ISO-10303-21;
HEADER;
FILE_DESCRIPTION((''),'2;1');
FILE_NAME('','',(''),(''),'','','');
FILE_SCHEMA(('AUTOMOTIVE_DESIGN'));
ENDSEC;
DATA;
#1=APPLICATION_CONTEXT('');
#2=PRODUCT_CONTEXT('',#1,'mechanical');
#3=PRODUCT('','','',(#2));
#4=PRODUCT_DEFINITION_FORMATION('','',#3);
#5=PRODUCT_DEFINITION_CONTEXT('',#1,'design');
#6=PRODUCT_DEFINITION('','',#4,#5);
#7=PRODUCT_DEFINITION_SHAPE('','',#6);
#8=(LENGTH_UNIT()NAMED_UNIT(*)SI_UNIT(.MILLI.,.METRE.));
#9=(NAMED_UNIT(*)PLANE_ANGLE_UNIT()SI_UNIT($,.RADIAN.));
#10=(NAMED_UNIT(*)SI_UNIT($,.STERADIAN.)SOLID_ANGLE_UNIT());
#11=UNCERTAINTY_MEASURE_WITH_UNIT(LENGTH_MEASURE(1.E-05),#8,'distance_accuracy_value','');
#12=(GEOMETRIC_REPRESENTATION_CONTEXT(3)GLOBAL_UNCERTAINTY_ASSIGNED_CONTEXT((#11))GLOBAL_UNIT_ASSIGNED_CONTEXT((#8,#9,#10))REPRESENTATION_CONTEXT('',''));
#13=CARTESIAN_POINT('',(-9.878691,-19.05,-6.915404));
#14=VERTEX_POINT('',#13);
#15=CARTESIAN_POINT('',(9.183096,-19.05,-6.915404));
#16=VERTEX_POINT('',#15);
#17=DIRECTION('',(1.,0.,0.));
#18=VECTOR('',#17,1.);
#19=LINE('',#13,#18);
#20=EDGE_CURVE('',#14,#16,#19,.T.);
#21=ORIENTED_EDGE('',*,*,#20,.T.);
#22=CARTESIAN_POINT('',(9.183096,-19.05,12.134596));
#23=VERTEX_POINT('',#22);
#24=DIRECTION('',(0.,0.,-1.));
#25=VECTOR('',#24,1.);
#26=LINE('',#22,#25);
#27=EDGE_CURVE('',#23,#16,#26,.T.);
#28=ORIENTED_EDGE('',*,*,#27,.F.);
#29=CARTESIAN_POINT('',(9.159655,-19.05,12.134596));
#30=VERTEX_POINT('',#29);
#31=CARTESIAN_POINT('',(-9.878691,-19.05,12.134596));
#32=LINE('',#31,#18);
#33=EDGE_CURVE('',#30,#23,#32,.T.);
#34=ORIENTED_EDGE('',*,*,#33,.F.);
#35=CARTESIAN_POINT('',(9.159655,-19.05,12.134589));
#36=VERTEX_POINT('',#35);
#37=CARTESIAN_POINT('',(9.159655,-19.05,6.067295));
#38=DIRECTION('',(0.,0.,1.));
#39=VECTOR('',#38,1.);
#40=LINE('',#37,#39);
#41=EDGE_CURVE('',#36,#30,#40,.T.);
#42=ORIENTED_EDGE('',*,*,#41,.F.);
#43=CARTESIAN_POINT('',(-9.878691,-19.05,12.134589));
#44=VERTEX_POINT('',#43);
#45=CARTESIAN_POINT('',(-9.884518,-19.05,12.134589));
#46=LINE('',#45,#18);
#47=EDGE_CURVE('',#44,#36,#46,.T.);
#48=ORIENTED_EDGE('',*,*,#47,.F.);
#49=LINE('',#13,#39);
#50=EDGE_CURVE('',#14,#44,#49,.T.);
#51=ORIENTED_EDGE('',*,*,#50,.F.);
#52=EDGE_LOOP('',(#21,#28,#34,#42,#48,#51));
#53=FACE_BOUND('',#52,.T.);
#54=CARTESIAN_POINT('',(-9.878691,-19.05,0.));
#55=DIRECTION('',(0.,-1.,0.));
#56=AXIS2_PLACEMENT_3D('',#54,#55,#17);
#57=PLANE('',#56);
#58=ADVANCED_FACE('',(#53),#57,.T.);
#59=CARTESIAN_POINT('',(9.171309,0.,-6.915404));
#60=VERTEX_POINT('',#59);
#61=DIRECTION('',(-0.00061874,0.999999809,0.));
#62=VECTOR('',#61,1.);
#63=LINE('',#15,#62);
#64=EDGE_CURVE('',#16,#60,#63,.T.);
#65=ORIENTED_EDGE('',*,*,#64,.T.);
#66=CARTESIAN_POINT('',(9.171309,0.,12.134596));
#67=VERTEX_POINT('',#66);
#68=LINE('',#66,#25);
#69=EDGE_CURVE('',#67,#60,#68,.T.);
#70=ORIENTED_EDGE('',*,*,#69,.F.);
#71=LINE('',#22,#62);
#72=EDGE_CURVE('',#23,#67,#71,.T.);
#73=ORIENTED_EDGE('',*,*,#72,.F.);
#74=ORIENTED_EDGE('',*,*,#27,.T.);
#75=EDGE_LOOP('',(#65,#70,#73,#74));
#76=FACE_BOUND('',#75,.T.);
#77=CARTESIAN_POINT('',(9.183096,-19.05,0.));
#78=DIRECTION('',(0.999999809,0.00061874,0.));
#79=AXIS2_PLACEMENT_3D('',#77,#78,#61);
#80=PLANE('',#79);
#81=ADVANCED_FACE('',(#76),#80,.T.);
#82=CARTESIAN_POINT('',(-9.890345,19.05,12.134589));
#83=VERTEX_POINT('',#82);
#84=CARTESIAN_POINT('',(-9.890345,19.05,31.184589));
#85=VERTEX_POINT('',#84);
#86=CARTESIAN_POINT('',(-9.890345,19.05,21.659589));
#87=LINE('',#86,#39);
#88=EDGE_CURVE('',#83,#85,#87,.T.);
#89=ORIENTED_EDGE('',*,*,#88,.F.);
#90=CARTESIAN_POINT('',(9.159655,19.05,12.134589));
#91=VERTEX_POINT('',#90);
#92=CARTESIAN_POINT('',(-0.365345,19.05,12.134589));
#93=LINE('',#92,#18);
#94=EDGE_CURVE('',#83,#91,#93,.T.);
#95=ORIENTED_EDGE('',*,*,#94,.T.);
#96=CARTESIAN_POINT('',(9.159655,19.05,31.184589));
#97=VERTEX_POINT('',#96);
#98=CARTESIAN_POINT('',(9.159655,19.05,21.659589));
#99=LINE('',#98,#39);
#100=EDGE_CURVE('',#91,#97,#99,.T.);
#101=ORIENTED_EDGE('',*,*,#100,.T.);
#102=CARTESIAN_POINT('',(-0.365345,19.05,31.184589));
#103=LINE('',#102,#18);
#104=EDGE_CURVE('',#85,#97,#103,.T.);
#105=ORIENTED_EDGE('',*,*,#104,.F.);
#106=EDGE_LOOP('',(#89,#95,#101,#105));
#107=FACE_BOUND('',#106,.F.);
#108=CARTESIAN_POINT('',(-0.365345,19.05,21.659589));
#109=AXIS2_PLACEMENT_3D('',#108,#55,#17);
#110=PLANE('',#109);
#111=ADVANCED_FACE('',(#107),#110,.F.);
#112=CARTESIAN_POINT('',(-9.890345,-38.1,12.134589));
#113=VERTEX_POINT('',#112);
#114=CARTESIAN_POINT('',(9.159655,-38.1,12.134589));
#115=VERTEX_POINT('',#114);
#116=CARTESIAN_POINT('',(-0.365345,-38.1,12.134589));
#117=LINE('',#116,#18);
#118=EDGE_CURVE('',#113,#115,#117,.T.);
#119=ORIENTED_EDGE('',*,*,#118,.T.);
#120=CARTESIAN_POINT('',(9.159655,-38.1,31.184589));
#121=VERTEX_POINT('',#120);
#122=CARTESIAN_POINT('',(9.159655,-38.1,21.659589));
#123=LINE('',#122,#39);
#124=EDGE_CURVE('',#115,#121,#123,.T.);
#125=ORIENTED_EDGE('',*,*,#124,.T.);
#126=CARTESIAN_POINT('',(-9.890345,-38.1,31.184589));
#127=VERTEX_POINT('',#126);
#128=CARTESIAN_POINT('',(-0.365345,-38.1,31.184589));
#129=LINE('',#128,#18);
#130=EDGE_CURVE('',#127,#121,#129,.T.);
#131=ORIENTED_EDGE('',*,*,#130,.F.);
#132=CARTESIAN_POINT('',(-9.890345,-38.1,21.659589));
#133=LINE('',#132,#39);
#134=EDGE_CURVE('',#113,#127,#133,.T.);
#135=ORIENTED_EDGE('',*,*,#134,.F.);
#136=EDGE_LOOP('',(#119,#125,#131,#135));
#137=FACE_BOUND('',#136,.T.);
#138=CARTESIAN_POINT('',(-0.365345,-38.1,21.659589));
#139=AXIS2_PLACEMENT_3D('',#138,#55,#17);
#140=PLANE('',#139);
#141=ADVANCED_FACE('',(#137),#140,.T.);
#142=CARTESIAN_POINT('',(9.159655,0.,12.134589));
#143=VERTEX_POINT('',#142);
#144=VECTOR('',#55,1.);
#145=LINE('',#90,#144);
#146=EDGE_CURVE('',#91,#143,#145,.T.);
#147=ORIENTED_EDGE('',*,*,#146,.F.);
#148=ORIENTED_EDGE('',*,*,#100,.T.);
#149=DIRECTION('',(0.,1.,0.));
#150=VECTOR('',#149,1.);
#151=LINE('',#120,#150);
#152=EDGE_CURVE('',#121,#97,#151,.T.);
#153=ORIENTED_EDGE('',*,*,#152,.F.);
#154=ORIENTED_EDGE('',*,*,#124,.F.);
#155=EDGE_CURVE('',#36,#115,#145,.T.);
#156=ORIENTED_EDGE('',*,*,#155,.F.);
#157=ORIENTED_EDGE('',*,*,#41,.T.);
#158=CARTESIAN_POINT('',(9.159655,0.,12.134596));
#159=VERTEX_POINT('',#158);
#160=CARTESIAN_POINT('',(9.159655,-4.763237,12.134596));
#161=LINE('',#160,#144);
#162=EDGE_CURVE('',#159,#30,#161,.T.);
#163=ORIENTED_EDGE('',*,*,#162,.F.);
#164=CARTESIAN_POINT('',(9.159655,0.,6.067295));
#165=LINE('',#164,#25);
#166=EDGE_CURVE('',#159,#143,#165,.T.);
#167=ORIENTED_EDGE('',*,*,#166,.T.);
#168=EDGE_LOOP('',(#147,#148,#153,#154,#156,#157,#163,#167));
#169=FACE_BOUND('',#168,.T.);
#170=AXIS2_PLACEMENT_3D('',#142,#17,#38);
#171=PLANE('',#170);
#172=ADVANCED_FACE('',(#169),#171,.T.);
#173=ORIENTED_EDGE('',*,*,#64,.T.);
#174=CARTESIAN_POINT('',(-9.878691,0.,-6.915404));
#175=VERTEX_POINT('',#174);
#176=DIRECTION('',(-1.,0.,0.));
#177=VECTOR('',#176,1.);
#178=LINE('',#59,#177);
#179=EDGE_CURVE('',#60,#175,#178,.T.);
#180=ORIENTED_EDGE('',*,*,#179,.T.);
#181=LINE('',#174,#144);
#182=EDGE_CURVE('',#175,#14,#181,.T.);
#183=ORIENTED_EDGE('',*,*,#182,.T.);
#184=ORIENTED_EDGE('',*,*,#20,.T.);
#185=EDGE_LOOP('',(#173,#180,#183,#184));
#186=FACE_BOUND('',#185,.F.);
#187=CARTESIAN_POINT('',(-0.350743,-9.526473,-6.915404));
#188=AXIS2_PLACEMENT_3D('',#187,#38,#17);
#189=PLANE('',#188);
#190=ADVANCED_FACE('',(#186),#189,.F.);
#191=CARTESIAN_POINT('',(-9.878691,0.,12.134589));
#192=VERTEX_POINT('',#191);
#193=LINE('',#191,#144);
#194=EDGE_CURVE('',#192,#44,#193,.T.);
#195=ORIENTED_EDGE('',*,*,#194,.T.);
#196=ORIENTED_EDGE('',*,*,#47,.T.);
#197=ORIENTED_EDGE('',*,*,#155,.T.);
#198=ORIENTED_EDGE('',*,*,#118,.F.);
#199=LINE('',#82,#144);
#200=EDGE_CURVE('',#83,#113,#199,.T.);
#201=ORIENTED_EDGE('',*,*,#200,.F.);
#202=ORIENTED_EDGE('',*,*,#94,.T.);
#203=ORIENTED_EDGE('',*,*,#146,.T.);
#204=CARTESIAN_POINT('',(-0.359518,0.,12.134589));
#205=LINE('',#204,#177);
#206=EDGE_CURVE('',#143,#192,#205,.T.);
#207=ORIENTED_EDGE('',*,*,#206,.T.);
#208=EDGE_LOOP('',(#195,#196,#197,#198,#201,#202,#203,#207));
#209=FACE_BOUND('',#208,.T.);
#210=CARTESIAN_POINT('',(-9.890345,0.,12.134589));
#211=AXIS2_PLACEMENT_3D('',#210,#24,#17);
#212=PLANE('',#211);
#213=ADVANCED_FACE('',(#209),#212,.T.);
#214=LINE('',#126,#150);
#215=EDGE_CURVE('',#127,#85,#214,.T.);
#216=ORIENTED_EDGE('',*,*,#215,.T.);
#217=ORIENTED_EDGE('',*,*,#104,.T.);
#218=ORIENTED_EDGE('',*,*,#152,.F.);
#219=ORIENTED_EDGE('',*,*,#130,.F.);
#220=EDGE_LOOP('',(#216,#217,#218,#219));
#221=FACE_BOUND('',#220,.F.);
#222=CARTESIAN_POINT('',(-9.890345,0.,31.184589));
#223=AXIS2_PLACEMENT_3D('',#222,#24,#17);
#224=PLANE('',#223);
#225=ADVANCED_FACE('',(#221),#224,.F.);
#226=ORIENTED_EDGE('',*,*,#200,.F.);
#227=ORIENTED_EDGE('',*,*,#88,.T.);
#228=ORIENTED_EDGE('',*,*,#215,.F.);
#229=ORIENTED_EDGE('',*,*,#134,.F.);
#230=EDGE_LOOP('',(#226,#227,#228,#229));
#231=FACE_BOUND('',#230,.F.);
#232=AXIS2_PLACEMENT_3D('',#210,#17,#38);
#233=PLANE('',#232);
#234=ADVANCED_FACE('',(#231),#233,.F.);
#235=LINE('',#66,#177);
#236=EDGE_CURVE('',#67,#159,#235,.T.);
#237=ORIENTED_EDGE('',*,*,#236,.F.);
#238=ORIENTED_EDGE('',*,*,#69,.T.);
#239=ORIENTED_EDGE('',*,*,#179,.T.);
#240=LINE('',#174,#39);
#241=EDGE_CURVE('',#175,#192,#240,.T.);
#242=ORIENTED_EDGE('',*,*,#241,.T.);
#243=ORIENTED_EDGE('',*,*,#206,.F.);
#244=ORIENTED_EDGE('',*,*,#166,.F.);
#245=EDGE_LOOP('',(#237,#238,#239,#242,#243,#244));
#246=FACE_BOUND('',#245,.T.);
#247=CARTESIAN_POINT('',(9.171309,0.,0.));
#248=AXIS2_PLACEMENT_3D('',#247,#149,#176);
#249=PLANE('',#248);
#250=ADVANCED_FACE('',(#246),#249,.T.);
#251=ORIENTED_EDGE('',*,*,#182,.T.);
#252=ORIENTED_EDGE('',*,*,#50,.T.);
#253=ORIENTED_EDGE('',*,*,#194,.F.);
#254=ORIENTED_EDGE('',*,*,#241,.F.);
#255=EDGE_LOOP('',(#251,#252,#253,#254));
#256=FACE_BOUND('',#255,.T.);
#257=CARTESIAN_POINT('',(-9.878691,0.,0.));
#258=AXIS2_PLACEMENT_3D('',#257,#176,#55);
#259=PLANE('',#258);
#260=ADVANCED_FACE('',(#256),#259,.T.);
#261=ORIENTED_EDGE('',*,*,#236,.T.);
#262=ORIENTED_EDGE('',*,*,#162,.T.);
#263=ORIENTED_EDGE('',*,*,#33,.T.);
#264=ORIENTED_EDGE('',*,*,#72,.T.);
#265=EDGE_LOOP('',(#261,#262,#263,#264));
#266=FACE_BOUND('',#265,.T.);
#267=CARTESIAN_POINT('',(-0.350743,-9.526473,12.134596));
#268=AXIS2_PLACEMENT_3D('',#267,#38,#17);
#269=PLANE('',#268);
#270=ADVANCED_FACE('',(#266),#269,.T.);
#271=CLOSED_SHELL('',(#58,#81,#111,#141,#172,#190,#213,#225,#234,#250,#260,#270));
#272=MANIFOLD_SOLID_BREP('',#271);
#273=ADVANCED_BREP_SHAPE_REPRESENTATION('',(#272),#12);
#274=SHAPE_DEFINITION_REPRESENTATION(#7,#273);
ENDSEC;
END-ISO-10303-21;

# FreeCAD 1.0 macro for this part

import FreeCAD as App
import Part
import Sketcher
Q = App.Units.Quantity

doc = App.newDocument("Part")
params = doc.addObject("Spreadsheet::Sheet", "Params")
for row, (alias, value) in enumerate([
    ("sketch1_width", "0.75 in"),
    ("pad1_length", "1.5 in"),
    ("pad1_length2", "0.75 in"),
    ("sketch2_width", "0.75 in"),
    ("pad2_length", "12.134596 mm"),
    ("pad2_length2", "6.915404 mm"),
], start=1):
    params.set(f"A{row}", alias)
    params.set(f"B{row}", "=" + value)
    params.setAlias(f"B{row}", alias)

body = doc.addObject("PartDesign::Body", "Body")

# Sketch on XZ plane
sketch1 = body.newObject("Sketcher::SketchObject", "Sketch")
sketch1.AttachmentSupport = (doc.getObject("XZ_Plane"), [""])
sketch1.MapMode = "FlatFace"
sketch1.addGeometry(Part.LineSegment(App.Vector(-10, 31, 0), App.Vector(-10, 12, 0)), False)
sketch1.addGeometry(Part.LineSegment(App.Vector(-10, 12, 0), App.Vector(9, 12, 0)), False)
sketch1.addGeometry(Part.LineSegment(App.Vector(9, 12, 0), App.Vector(9, 31, 0)), False)
sketch1.addGeometry(Part.LineSegment(App.Vector(9, 31, 0), App.Vector(-10, 31, 0)), False)
sketch1.addConstraint(Sketcher.Constraint("Coincident", 0, 2, 1, 1))
sketch1.addConstraint(Sketcher.Constraint("Coincident", 1, 2, 2, 1))
sketch1.addConstraint(Sketcher.Constraint("Coincident", 2, 2, 3, 1))
sketch1.addConstraint(Sketcher.Constraint("Coincident", 3, 2, 0, 1))
sketch1.addConstraint(Sketcher.Constraint("Vertical", 0))
sketch1.addConstraint(Sketcher.Constraint("Horizontal", 1))
sketch1.addConstraint(Sketcher.Constraint("Vertical", 2))
sketch1.addConstraint(Sketcher.Constraint("Horizontal", 3))
sketch1.addConstraint(Sketcher.Constraint("Equal", 3, 0))
sketch1.addConstraint(Sketcher.Constraint("DistanceX", 1, 1, 1, 2, Q("0.75 in")))
sketch1.addConstraint(Sketcher.Constraint("DistanceY", -1, 1, 0, 2, Q("12.134589 mm")))
sketch1.addConstraint(Sketcher.Constraint("DistanceX", 0, 2, -1, 1, Q("9.890345 mm")))
sketch1.setExpression("Constraints[9]", "Params.sketch1_width")
pad1 = body.newObject("PartDesign::Pad", "Pad")
pad1.Profile = sketch1
pad1.Type = "TwoLengths"
pad1.setExpression("Length", "Params.pad1_length")
pad1.setExpression("Length2", "Params.pad1_length2")

# Sketch on XY plane
sketch2 = body.newObject("Sketcher::SketchObject", "Sketch001")
sketch2.AttachmentSupport = (doc.getObject("XY_Plane"), [""])
sketch2.MapMode = "FlatFace"
sketch2.addGeometry(Part.LineSegment(App.Vector(9, 0, 0), App.Vector(-10, 0, 0)), False)
sketch2.addGeometry(Part.LineSegment(App.Vector(-10, 0, 0), App.Vector(-10, -19, 0)), False)
sketch2.addGeometry(Part.LineSegment(App.Vector(-10, -19, 0), App.Vector(9, -19, 0)), False)
sketch2.addGeometry(Part.LineSegment(App.Vector(9, -19, 0), App.Vector(9, 0, 0)), False)
sketch2.addConstraint(Sketcher.Constraint("Coincident", 0, 2, 1, 1))
sketch2.addConstraint(Sketcher.Constraint("Coincident", 1, 2, 2, 1))
sketch2.addConstraint(Sketcher.Constraint("Coincident", 2, 2, 3, 1))
sketch2.addConstraint(Sketcher.Constraint("Coincident", 3, 2, 0, 1))
sketch2.addConstraint(Sketcher.Constraint("Horizontal", 0))
sketch2.addConstraint(Sketcher.Constraint("Vertical", 1))
sketch2.addConstraint(Sketcher.Constraint("Horizontal", 2))
sketch2.addConstraint(Sketcher.Constraint("PointOnObject", 0, 2, -1))
sketch2.addConstraint(Sketcher.Constraint("Equal", 0, 1))
sketch2.addConstraint(Sketcher.Constraint("DistanceX", 0, 2, 0, 1, Q("0.75 in")))
sketch2.addConstraint(Sketcher.Constraint("DistanceX", 2, 1, 2, 2, Q("19.061787 mm")))
sketch2.addConstraint(Sketcher.Constraint("DistanceX", 0, 2, -1, 1, Q("9.878691 mm")))
sketch2.setExpression("Constraints[9]", "Params.sketch2_width")
pad2 = body.newObject("PartDesign::Pad", "Pad001")
pad2.Profile = sketch2
pad2.Type = "TwoLengths"
pad2.setExpression("Length", "Params.pad2_length")
pad2.setExpression("Length2", "Params.pad2_length2")

doc.recompute()
